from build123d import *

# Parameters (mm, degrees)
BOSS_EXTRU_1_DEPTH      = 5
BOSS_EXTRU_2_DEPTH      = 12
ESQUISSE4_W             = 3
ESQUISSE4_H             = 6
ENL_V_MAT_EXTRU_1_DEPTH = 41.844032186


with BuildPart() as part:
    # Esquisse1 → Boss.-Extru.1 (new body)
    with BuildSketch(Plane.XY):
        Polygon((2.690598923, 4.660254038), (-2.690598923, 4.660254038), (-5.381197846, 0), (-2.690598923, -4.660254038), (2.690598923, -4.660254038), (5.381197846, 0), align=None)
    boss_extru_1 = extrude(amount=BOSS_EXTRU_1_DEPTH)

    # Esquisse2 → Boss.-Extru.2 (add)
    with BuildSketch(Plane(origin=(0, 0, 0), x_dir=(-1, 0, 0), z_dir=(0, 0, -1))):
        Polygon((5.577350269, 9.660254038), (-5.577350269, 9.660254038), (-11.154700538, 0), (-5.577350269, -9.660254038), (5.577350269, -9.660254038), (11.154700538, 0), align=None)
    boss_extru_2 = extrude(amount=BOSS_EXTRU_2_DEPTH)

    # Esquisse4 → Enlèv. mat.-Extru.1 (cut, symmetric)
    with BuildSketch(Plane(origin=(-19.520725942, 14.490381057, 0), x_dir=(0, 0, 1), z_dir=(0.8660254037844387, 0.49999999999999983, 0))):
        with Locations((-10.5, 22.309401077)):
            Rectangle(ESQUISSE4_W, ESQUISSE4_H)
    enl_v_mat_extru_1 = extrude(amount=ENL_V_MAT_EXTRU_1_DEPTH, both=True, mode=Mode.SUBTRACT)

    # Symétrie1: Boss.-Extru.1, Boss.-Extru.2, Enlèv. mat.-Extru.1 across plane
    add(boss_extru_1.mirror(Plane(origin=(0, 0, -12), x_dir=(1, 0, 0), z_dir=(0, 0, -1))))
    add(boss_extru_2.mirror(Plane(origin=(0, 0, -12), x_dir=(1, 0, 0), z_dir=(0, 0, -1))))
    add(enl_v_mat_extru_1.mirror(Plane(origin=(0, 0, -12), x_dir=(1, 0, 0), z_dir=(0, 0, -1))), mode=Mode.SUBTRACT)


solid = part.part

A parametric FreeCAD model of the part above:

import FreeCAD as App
import Part
import Sketcher

V = App.Vector
Q = App.Units.Quantity

doc = App.newDocument("Part")
body = doc.addObject("PartDesign::Body", "Body")

# Sketch on XY plane
sketch1 = body.newObject("Sketcher::SketchObject", "Sketch")
sketch1.AttachmentSupport = (doc.getObject("XY_Plane"), [""])
sketch1.MapMode = "FlatFace"
sketch1.addGeometry(Part.LineSegment(V(3, 5, 0), V(-3, 5, 0)), False)
sketch1.addGeometry(Part.LineSegment(V(-3, 5, 0), V(-5, 0, 0)), False)
sketch1.addGeometry(Part.LineSegment(V(-5, 0, 0), V(-3, -5, 0)), False)
sketch1.addGeometry(Part.LineSegment(V(-3, -5, 0), V(3, -5, 0)), False)
sketch1.addGeometry(Part.LineSegment(V(3, -5, 0), V(5, 0, 0)), False)
sketch1.addGeometry(Part.LineSegment(V(5, 0, 0), V(3, 5, 0)), False)
sketch1.addConstraint(Sketcher.Constraint("Coincident", 0, 2, 1, 1))
sketch1.addConstraint(Sketcher.Constraint("Coincident", 1, 2, 2, 1))
sketch1.addConstraint(Sketcher.Constraint("Coincident", 2, 2, 3, 1))
sketch1.addConstraint(Sketcher.Constraint("Coincident", 3, 2, 4, 1))
sketch1.addConstraint(Sketcher.Constraint("Coincident", 4, 2, 5, 1))
sketch1.addConstraint(Sketcher.Constraint("Coincident", 5, 2, 0, 1))
sketch1.addConstraint(Sketcher.Constraint("Horizontal", 0))
sketch1.addConstraint(Sketcher.Constraint("Horizontal", 3))
sketch1.addConstraint(Sketcher.Constraint("Symmetric", 0, 2, 3, 2, -1, 1))
sketch1.addConstraint(Sketcher.Constraint("Symmetric", 1, 2, 4, 2, -1, 1))
sketch1.addConstraint(Sketcher.Constraint("PointOnObject", 1, 2, -1))
sketch1.addConstraint(Sketcher.Constraint("Parallel", 2, 5))
sketch1.addConstraint(Sketcher.Constraint("Vertical", 0, 2, 2, 2))
sketch1.addConstraint(Sketcher.Constraint("Angle", 1, Q("-120 deg")))
sketch1.addConstraint(Sketcher.Constraint("DistanceX", 0, 2, -1, 1, 2.690599))
sketch1.addConstraint(Sketcher.Constraint("DistanceX", 1, 2, 0, 2, 2.690599))
pad1 = body.newObject("PartDesign::Pad", "Pad")
pad1.Profile = sketch1
pad1.Length = 5

# Sketch on XY plane
sketch2 = body.newObject("Sketcher::SketchObject", "Sketch001")
sketch2.AttachmentSupport = (doc.getObject("XY_Plane"), [""])
sketch2.MapMode = "FlatFace"
sketch2.addGeometry(Part.LineSegment(V(-6, 10, 0), V(6, 10, 0)), False)
sketch2.addGeometry(Part.LineSegment(V(6, 10, 0), V(11, 0, 0)), False)
sketch2.addGeometry(Part.LineSegment(V(11, 0, 0), V(6, -10, 0)), False)
sketch2.addGeometry(Part.LineSegment(V(6, -10, 0), V(-6, -10, 0)), False)
sketch2.addGeometry(Part.LineSegment(V(-6, -10, 0), V(-11, 0, 0)), False)
sketch2.addGeometry(Part.LineSegment(V(-11, 0, 0), V(-6, 10, 0)), False)
sketch2.addConstraint(Sketcher.Constraint("Coincident", 0, 2, 1, 1))
sketch2.addConstraint(Sketcher.Constraint("Coincident", 1, 2, 2, 1))
sketch2.addConstraint(Sketcher.Constraint("Coincident", 2, 2, 3, 1))
sketch2.addConstraint(Sketcher.Constraint("Coincident", 3, 2, 4, 1))
sketch2.addConstraint(Sketcher.Constraint("Coincident", 4, 2, 5, 1))
sketch2.addConstraint(Sketcher.Constraint("Coincident", 5, 2, 0, 1))
sketch2.addConstraint(Sketcher.Constraint("Horizontal", 0))
sketch2.addConstraint(Sketcher.Constraint("Horizontal", 3))
sketch2.addConstraint(Sketcher.Constraint("Symmetric", 0, 2, 3, 2, -1, 1))
sketch2.addConstraint(Sketcher.Constraint("Symmetric", 1, 2, 4, 2, -1, 1))
sketch2.addConstraint(Sketcher.Constraint("PointOnObject", 1, 2, -1))
sketch2.addConstraint(Sketcher.Constraint("Parallel", 2, 5))
sketch2.addConstraint(Sketcher.Constraint("Vertical", 0, 2, 2, 2))
sketch2.addConstraint(Sketcher.Constraint("Angle", 1, Q("-60 deg")))
sketch2.addConstraint(Sketcher.Constraint("DistanceX", 0, 1, 0, 2, 11.154701))
sketch2.addConstraint(Sketcher.Constraint("Distance", 1, 11.154701))
pad2 = body.newObject("PartDesign::Pad", "Pad001")
pad2.Profile = sketch2
pad2.Length = 12
pad2.Reversed = True

# Sketch on an angled plane
sketch3 = body.newObject("Sketcher::SketchObject", "Sketch002")
sketch3.Placement = App.Placement(V(-19.520726, 14.490381, 0), App.Rotation(V(0, 0, 1), V(0.5, -0.866025404, 0), V(0.866025404, 0.5, 0), "ZXY"))
sketch3.addGeometry(Part.LineSegment(V(-12, 25.3, 0), V(-12, 19.3, 0)), False)
sketch3.addGeometry(Part.LineSegment(V(-12, 19.3, 0), V(-9, 19.3, 0)), False)
sketch3.addGeometry(Part.LineSegment(V(-9, 19.3, 0), V(-9, 25.3, 0)), False)
sketch3.addGeometry(Part.LineSegment(V(-9, 25.3, 0), V(-12, 25.3, 0)), False)
sketch3.addConstraint(Sketcher.Constraint("Coincident", 0, 2, 1, 1))
sketch3.addConstraint(Sketcher.Constraint("Coincident", 1, 2, 2, 1))
sketch3.addConstraint(Sketcher.Constraint("Coincident", 2, 2, 3, 1))
sketch3.addConstraint(Sketcher.Constraint("Coincident", 3, 2, 0, 1))
sketch3.addConstraint(Sketcher.Constraint("Vertical", 0))
sketch3.addConstraint(Sketcher.Constraint("Horizontal", 1))
sketch3.addConstraint(Sketcher.Constraint("Vertical", 2))
sketch3.addConstraint(Sketcher.Constraint("Horizontal", 3))
sketch3.addConstraint(Sketcher.Constraint("DistanceX", 1, 1, 1, 2, 3.0))
sketch3.addConstraint(Sketcher.Constraint("DistanceY", 0, 2, 0, 1, 6.0))
sketch3.addConstraint(Sketcher.Constraint("DistanceX", 0, 2, -1, 1, 12.0))
sketch3.addConstraint(Sketcher.Constraint("DistanceY", -1, 1, 0, 2, 19.309401))
pocket1 = body.newObject("PartDesign::Pocket", "Pocket")
pocket1.Profile = sketch3
pocket1.Length = 83.688064
pocket1.Midplane = True
doc.recompute()

datumplane = body.newObject("PartDesign::Plane", "DatumPlane")
datumplane.AttachmentSupport = (doc.getObject("XY_Plane"), [""])
datumplane.MapMode = "FlatFace"
datumplane.AttachmentOffset = App.Placement(V(0, 0, -12), App.Rotation())
mirrored = body.newObject("PartDesign::Mirrored", "Mirrored")
mirrored.Originals = [pad1, pad2, pocket1]
mirrored.MirrorPlane = (datumplane, [""])
body.Tip = mirrored

doc.recompute()
